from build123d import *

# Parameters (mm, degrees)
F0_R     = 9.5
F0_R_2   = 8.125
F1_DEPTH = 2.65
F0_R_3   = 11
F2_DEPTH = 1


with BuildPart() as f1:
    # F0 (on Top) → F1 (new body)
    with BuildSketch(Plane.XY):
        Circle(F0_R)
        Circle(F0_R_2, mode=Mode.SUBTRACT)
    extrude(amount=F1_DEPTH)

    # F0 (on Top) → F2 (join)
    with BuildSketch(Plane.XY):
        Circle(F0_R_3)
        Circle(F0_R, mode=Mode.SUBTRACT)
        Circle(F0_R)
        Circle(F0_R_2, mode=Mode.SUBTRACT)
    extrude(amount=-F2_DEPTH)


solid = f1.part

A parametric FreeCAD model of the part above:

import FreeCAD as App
import Part
import Sketcher

doc = App.newDocument("Part")
body = doc.addObject("PartDesign::Body", "Body")

sketch1 = body.newObject("Sketcher::SketchObject", "Sketch")
sketch1.AttachmentSupport = (doc.getObject("XY_Plane"), [""])
sketch1.MapMode = "FlatFace"
sketch1.addGeometry([
    Part.Circle(App.Vector(0, 0, 0), App.Vector(0, 0, 1), 10),
    Part.Circle(App.Vector(0, 0, 0), App.Vector(0, 0, 1), 8),
], False)
sketch1.addConstraint([
    Sketcher.Constraint("Coincident", 0, 3, -1, 1),
    Sketcher.Constraint("Coincident", 1, 3, -1, 1),
    Sketcher.Constraint("Diameter", 0, 19.0),
    Sketcher.Constraint("Diameter", 1, 16.25),
])
pad1 = body.newObject("PartDesign::Pad", "Pad")
pad1.Profile = sketch1
pad1.Length = 2.65

sketch2 = body.newObject("Sketcher::SketchObject", "Sketch001")
sketch2.AttachmentSupport = (doc.getObject("XY_Plane"), [""])
sketch2.MapMode = "FlatFace"
sketch2.addGeometry([
    Part.Circle(App.Vector(0, 0, 0), App.Vector(0, 0, 1), 11),
    Part.Circle(App.Vector(0, 0, 0), App.Vector(0, 0, 1), 8),
], False)
sketch2.addConstraint([
    Sketcher.Constraint("Coincident", 0, 3, -1, 1),
    Sketcher.Constraint("Coincident", 1, 3, -1, 1),
    Sketcher.Constraint("Diameter", 0, 22.0),
    Sketcher.Constraint("Diameter", 1, 16.25),
])
pad2 = body.newObject("PartDesign::Pad", "Pad001")
pad2.Profile = sketch2
pad2.Length = 1
pad2.Reversed = True

doc.recompute()
